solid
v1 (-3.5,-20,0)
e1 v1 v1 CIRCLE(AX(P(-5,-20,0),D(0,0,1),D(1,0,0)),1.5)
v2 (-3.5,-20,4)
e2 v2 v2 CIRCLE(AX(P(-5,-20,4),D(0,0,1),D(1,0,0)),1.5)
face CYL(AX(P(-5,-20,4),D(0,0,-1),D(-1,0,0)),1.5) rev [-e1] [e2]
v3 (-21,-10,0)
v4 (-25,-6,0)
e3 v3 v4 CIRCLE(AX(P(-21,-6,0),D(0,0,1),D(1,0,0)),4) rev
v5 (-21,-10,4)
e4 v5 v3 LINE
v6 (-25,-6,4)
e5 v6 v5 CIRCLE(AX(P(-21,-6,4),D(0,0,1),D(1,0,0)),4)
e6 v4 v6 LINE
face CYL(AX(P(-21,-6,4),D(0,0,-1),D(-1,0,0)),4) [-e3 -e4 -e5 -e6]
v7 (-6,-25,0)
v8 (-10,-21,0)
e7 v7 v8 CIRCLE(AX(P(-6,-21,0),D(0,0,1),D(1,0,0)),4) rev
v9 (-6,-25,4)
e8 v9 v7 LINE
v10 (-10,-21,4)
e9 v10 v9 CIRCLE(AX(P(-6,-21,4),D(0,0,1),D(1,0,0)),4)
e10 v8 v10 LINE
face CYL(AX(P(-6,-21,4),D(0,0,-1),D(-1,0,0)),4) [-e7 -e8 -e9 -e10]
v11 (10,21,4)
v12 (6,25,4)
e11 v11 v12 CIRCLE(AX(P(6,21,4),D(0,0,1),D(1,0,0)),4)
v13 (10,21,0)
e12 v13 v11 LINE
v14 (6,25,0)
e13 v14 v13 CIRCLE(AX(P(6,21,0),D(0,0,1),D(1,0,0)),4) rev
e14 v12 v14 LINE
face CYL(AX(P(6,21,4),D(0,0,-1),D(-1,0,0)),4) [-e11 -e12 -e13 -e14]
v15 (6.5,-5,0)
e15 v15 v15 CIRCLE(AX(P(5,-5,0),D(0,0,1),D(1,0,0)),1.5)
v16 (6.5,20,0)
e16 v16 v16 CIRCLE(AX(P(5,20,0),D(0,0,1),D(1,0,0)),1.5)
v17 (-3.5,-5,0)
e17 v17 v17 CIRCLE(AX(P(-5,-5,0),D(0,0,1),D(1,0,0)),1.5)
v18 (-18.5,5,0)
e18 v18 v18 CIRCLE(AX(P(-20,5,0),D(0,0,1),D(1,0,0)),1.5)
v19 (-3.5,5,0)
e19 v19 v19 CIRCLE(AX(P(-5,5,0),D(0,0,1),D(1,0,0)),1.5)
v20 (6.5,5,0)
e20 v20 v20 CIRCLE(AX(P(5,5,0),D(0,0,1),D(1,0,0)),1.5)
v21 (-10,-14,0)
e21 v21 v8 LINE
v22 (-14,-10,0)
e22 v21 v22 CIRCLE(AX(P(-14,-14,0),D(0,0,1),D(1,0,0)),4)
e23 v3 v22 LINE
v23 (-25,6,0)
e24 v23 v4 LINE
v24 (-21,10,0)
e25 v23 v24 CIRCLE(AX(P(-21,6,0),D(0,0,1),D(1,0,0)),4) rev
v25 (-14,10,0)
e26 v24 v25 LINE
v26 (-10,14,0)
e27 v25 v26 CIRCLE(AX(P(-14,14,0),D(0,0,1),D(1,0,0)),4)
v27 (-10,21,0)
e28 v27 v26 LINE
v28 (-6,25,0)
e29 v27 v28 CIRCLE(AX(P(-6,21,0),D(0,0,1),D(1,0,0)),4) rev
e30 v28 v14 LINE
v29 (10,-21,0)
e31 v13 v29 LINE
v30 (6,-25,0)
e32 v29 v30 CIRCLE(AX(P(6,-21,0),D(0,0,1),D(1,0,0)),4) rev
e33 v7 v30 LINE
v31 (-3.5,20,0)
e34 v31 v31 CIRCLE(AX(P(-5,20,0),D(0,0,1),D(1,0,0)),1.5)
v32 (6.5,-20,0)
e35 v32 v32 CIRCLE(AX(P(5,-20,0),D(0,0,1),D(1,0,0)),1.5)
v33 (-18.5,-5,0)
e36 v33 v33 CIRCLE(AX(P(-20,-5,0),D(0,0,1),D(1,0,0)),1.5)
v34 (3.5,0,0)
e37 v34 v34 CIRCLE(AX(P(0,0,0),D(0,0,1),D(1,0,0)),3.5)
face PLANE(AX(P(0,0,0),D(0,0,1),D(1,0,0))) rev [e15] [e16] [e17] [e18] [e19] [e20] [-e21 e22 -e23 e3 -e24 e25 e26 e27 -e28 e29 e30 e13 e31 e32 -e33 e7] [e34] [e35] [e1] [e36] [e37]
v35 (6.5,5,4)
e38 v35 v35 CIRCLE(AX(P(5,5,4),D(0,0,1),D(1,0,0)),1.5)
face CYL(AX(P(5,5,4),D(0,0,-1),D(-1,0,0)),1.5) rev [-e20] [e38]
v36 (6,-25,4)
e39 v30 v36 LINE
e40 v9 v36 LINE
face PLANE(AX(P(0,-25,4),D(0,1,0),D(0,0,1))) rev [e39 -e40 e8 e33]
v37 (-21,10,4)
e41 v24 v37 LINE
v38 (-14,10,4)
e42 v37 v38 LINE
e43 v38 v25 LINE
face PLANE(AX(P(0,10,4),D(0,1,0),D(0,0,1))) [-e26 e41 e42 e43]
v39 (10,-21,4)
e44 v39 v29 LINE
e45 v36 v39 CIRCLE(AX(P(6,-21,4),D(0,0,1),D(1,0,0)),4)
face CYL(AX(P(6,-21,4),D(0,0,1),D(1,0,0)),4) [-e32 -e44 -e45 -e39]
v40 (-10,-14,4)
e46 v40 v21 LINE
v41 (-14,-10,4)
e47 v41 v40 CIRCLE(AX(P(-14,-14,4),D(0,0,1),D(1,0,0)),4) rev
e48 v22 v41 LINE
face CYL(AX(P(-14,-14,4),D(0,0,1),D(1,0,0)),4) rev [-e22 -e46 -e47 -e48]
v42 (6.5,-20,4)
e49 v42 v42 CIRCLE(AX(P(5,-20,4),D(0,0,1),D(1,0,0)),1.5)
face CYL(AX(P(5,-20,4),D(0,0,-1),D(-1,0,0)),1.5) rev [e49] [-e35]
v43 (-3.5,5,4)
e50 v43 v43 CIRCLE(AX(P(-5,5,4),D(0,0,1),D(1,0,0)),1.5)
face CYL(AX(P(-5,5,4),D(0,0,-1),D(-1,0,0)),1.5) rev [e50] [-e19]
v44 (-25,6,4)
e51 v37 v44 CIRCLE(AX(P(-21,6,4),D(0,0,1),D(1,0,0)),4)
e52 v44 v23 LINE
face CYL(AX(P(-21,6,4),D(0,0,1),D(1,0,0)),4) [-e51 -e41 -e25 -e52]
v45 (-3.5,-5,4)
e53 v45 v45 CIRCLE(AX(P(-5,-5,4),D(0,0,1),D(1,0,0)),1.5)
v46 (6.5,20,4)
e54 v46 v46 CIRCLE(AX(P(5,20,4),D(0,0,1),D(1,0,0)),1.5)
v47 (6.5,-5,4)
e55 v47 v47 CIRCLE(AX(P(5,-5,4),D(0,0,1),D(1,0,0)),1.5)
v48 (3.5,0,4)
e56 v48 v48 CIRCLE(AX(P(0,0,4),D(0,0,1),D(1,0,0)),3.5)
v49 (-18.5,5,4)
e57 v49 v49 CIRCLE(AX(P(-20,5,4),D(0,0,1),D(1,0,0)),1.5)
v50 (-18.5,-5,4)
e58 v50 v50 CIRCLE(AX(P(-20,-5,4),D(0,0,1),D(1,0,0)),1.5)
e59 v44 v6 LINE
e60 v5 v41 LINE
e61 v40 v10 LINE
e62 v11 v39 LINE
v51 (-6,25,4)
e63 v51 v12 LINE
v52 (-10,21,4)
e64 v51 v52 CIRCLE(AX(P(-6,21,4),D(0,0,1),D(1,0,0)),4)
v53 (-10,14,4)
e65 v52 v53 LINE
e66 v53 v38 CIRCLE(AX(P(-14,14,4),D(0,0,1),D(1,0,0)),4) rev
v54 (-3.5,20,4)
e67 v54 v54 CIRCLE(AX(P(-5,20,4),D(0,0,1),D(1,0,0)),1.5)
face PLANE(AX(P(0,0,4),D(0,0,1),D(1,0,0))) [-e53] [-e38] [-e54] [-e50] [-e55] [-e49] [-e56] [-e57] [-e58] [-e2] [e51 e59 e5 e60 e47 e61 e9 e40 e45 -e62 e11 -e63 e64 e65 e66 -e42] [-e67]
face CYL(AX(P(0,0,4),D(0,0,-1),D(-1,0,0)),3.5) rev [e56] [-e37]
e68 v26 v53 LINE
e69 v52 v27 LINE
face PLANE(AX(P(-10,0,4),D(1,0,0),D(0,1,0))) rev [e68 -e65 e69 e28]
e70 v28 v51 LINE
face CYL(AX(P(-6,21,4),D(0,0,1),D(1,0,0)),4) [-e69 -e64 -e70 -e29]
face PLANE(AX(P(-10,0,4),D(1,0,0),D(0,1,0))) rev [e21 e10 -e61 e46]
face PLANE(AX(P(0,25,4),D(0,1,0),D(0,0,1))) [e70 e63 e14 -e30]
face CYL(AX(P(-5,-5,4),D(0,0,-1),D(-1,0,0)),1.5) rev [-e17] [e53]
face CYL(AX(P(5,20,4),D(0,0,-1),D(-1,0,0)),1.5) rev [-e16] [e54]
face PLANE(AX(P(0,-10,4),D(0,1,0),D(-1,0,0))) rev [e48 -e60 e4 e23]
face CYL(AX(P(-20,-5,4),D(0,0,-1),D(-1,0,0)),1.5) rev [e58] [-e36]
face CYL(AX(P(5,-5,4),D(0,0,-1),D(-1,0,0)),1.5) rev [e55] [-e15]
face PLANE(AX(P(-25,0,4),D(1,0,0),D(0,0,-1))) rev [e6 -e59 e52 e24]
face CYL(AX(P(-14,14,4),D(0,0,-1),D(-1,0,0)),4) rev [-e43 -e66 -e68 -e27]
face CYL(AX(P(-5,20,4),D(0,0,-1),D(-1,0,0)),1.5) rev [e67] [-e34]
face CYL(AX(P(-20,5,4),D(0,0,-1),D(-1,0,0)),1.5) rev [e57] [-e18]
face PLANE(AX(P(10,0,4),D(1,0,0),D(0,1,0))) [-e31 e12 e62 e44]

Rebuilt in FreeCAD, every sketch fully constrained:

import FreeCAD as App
import Part
import Sketcher

V = App.Vector


def edges_at(feature, points):
    """Names of the edges that pass closest to the given points."""
    edges = feature.Shape.Edges
    near = lambda p: min(range(len(edges)), key=lambda i: edges[i].distToShape(Part.Vertex(*p))[0])
    return sorted({f"Edge{near(p) + 1}" for p in points})


def add_polygon(sketch, points):
    """Adds a closed chain of lines whose ends are joined by coincident constraints."""
    first, n = sketch.GeometryCount, len(points)
    for a, b in zip(points, points[1:] + points[:1]):
        sketch.addGeometry(Part.LineSegment(App.Vector(*a, 0), App.Vector(*b, 0)), False)
    for i in range(n):
        sketch.addConstraint(Sketcher.Constraint("Coincident", first + i, 2, first + (i + 1) % n, 1))

doc = App.newDocument("Part")
body = doc.addObject("PartDesign::Body", "Body")

# Sketch on XY plane
sketch1 = doc.addObject("Sketcher::SketchObject", "Sketch")
body.addObject(sketch1)
sketch1.AttachmentSupport = (doc.XY_Plane, [""])
sketch1.MapMode = "FlatFace"
add_polygon(sketch1, [(-25, 10), (-25, -10), (-10, -10), (-10, -25), (10, -25), (10, 25), (-10, 25), (-10, 10)])  # lines 0-7
sketch1.addGeometry(Part.Circle(V(-20, -5, 0), V(0, 0, 1), 1.5), False)  # 8
sketch1.addGeometry(Part.Circle(V(-20, 5, 0), V(0, 0, 1), 1.5), False)  # 9
sketch1.addGeometry(Part.Circle(V(5, 5, 0), V(0, 0, 1), 1.5), False)  # 10
sketch1.addGeometry(Part.Circle(V(-5, -5, 0), V(0, 0, 1), 1.5), False)  # 11
sketch1.addGeometry(Part.Circle(V(5, -5, 0), V(0, 0, 1), 1.5), False)  # 12
sketch1.addGeometry(Part.Circle(V(-5, 5, 0), V(0, 0, 1), 1.5), False)  # 13
sketch1.addGeometry(Part.Circle(V(0, 0, 0), V(0, 0, 1), 3.5), False)  # 14
sketch1.addGeometry(Part.Circle(V(5, -20, 0), V(0, 0, 1), 1.5), False)  # 15
sketch1.addGeometry(Part.Circle(V(-5, -20, 0), V(0, 0, 1), 1.5), False)  # 16
sketch1.addGeometry(Part.Circle(V(5, 20, 0), V(0, 0, 1), 1.5), False)  # 17
sketch1.addGeometry(Part.Circle(V(-5, 20, 0), V(0, 0, 1), 1.5), False)  # 18
sketch1.addConstraint([
    Sketcher.Constraint("Vertical", 0),
    Sketcher.Constraint("Horizontal", 1),
    Sketcher.Constraint("Vertical", 2),
    Sketcher.Constraint("Horizontal", 3),
    Sketcher.Constraint("Vertical", 4),
    Sketcher.Constraint("Horizontal", 5),
    Sketcher.Constraint("Vertical", 6),
    Sketcher.Constraint("Horizontal", 7),
    Sketcher.Constraint("Coincident", 14, 3, -1, 1),
    Sketcher.Constraint("Equal", 8, 9),
    Sketcher.Constraint("Equal", 9, 10),
    Sketcher.Constraint("Equal", 10, 11),
    Sketcher.Constraint("Equal", 11, 12),
    Sketcher.Constraint("Equal", 12, 13),
    Sketcher.Constraint("Equal", 13, 15),
    Sketcher.Constraint("Equal", 15, 16),
    Sketcher.Constraint("Equal", 16, 17),
    Sketcher.Constraint("Equal", 17, 18),
    Sketcher.Constraint("Symmetric", 10, 3, 11, 3, -1, 1),
    Sketcher.Constraint("Symmetric", 12, 3, 13, 3, -1, 1),
    Sketcher.Constraint("Symmetric", 16, 3, 17, 3, -1, 1),
    Sketcher.Constraint("Symmetric", 15, 3, 18, 3, -1, 1),
    Sketcher.Constraint("Symmetric", 2, 2, 4, 2, -1, 1),
    Sketcher.Constraint("Symmetric", 11, 3, 12, 3, -2),
    Sketcher.Constraint("Symmetric", 15, 3, 16, 3, -2),
    Sketcher.Constraint("Symmetric", 8, 3, 9, 3, -1),
    Sketcher.Constraint("Symmetric", 1, 2, 6, 2, -1),
    Sketcher.Constraint("Horizontal", 9, 3, 10, 3),
    Sketcher.Constraint("Vertical", 12, 3, 15, 3),
    Sketcher.Constraint("Equal", 5, 0),
    Sketcher.Constraint("Equal", 7, 2),
    Sketcher.Constraint("Diameter", 8, 3.0),
    Sketcher.Constraint("Diameter", 14, 7.0),
    Sketcher.Constraint("DistanceX", 1, 1, 1, 2, 15.0),
    Sketcher.Constraint("DistanceX", 3, 1, 3, 2, 20.0),
    Sketcher.Constraint("DistanceX", 8, 3, -1, 1, 20.0),
    Sketcher.Constraint("DistanceY", 8, 3, -1, 1, 5.0),
    Sketcher.Constraint("DistanceX", -1, 1, 10, 3, 5.0),
    Sketcher.Constraint("DistanceY", 15, 3, -1, 1, 20.0),
])
pad1 = doc.addObject("PartDesign::Pad", "Pad")
body.addObject(pad1)
pad1.Profile = sketch1
pad1.Length = 4
doc.recompute()

fillet = doc.addObject("PartDesign::Fillet", "Fillet")
body.addObject(fillet)
fillet.Base = (pad1, edges_at(pad1, [
    (-25, -10, 2),
    (-25, 10, 2),
    (-10, 10, 2),
    (-10, 25, 2),
    (10, 25, 2),
    (10, -25, 2),
    (-10, -25, 2),
    (-10, -10, 2),
]))
fillet.Radius = 4

doc.recompute()
